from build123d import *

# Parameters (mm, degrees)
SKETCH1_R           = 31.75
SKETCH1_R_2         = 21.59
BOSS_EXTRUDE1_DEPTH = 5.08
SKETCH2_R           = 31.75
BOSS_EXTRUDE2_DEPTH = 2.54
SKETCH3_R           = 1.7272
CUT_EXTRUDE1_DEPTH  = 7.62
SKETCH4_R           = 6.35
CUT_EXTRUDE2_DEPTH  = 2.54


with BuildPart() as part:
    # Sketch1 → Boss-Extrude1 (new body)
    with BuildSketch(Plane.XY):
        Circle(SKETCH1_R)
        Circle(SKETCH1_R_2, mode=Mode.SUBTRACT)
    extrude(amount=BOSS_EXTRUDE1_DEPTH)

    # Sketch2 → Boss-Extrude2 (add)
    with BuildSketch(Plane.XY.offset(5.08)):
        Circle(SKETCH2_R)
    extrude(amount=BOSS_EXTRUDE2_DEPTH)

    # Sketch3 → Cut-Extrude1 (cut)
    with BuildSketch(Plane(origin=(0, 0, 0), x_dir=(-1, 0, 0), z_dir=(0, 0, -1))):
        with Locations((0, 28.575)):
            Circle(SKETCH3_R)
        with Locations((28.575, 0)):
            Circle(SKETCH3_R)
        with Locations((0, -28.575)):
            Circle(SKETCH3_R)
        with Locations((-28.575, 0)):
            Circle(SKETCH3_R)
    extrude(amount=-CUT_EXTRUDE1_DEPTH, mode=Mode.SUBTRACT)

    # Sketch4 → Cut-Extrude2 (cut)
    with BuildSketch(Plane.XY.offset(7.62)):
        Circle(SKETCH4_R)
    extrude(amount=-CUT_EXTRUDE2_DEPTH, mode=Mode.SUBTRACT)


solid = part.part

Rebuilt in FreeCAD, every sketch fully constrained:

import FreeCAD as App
import Part
import Sketcher
from FreeCAD import Vector
Q = App.Units.Quantity

doc = App.newDocument("Part")
body = doc.addObject("PartDesign::Body", "Body")

# Sketch on XY plane
sketch1 = body.newObject("Sketcher::SketchObject", "Sketch")
sketch1.AttachmentSupport = (doc.getObject("XY_Plane"), [""])
sketch1.MapMode = "FlatFace"
sketch1.addGeometry([
    Part.Circle(Vector(0, 0, 0), Vector(0, 0, 1), 31.75),
    Part.Circle(Vector(0, 0, 0), Vector(0, 0, 1), 21.59),
], False)
sketch1.addConstraint([
    Sketcher.Constraint("Coincident", 0, 3, -1, 1),
    Sketcher.Constraint("Coincident", 1, 3, -1, 1),
    Sketcher.Constraint("Diameter", 0, Q("2.5 in")),
    Sketcher.Constraint("Diameter", 1, Q("1.7 in")),
])
pad1 = body.newObject("PartDesign::Pad", "Pad")
pad1.Profile = sketch1
pad1.Length = Q("0.2 in")

# Sketch on XY plane
sketch2 = body.newObject("Sketcher::SketchObject", "Sketch001")
sketch2.AttachmentSupport = (doc.getObject("XY_Plane"), [""])
sketch2.MapMode = "FlatFace"
sketch2.AttachmentOffset = App.Placement(Vector(0, 0, 0.2 * 25.4), App.Rotation())
sketch2.addGeometry(Part.Circle(Vector(0, 0, 0), Vector(0, 0, 1), 31.75), False)
sketch2.addConstraint([
    Sketcher.Constraint("Coincident", 0, 3, -1, 1),
    Sketcher.Constraint("Diameter", 0, Q("2.5 in")),
])
pad2 = body.newObject("PartDesign::Pad", "Pad001")
pad2.Profile = sketch2
pad2.Length = Q("0.1 in")

# Sketch on XY plane
sketch3 = body.newObject("Sketcher::SketchObject", "Sketch002")
sketch3.AttachmentSupport = (doc.getObject("XY_Plane"), [""])
sketch3.MapMode = "FlatFace"
sketch3.addGeometry([
    Part.Circle(Vector(0, 28.575, 0), Vector(0, 0, 1), 1.7272),
    Part.Circle(Vector(-28.575, 0, 0), Vector(0, 0, 1), 1.7272),
    Part.Circle(Vector(0, -28.575, 0), Vector(0, 0, 1), 1.7272),
    Part.Circle(Vector(28.575, 0, 0), Vector(0, 0, 1), 1.7272),
], False)
sketch3.addConstraint([
    Sketcher.Constraint("Equal", 0, 1),
    Sketcher.Constraint("Equal", 1, 2),
    Sketcher.Constraint("Equal", 2, 3),
    Sketcher.Constraint("Symmetric", 0, 3, 2, 3, -1, 1),
    Sketcher.Constraint("Symmetric", 1, 3, 3, 3, -1, 1),
    Sketcher.Constraint("PointOnObject", 0, 3, -2),
    Sketcher.Constraint("PointOnObject", 1, 3, -1),
    Sketcher.Constraint("Diameter", 0, Q("0.136 in")),
    Sketcher.Constraint("DistanceY", 2, 3, 0, 3, Q("2.25 in")),
    Sketcher.Constraint("DistanceX", 1, 3, 3, 3, Q("2.25 in")),
])
pocket1 = body.newObject("PartDesign::Pocket", "Pocket")
pocket1.Profile = sketch3
pocket1.Length = Q("0.3 in")
pocket1.Reversed = True

# Sketch on XY plane
sketch4 = body.newObject("Sketcher::SketchObject", "Sketch003")
sketch4.AttachmentSupport = (doc.getObject("XY_Plane"), [""])
sketch4.MapMode = "FlatFace"
sketch4.AttachmentOffset = App.Placement(Vector(0, 0, 0.3 * 25.4), App.Rotation())
sketch4.addGeometry(Part.Circle(Vector(0, 0, 0), Vector(0, 0, 1), 6.35), False)
sketch4.addConstraint([
    Sketcher.Constraint("Coincident", 0, 3, -1, 1),
    Sketcher.Constraint("Diameter", 0, Q("0.5 in")),
])
pocket2 = body.newObject("PartDesign::Pocket", "Pocket001")
pocket2.Profile = sketch4
pocket2.Length = Q("0.1 in")

doc.recompute()
